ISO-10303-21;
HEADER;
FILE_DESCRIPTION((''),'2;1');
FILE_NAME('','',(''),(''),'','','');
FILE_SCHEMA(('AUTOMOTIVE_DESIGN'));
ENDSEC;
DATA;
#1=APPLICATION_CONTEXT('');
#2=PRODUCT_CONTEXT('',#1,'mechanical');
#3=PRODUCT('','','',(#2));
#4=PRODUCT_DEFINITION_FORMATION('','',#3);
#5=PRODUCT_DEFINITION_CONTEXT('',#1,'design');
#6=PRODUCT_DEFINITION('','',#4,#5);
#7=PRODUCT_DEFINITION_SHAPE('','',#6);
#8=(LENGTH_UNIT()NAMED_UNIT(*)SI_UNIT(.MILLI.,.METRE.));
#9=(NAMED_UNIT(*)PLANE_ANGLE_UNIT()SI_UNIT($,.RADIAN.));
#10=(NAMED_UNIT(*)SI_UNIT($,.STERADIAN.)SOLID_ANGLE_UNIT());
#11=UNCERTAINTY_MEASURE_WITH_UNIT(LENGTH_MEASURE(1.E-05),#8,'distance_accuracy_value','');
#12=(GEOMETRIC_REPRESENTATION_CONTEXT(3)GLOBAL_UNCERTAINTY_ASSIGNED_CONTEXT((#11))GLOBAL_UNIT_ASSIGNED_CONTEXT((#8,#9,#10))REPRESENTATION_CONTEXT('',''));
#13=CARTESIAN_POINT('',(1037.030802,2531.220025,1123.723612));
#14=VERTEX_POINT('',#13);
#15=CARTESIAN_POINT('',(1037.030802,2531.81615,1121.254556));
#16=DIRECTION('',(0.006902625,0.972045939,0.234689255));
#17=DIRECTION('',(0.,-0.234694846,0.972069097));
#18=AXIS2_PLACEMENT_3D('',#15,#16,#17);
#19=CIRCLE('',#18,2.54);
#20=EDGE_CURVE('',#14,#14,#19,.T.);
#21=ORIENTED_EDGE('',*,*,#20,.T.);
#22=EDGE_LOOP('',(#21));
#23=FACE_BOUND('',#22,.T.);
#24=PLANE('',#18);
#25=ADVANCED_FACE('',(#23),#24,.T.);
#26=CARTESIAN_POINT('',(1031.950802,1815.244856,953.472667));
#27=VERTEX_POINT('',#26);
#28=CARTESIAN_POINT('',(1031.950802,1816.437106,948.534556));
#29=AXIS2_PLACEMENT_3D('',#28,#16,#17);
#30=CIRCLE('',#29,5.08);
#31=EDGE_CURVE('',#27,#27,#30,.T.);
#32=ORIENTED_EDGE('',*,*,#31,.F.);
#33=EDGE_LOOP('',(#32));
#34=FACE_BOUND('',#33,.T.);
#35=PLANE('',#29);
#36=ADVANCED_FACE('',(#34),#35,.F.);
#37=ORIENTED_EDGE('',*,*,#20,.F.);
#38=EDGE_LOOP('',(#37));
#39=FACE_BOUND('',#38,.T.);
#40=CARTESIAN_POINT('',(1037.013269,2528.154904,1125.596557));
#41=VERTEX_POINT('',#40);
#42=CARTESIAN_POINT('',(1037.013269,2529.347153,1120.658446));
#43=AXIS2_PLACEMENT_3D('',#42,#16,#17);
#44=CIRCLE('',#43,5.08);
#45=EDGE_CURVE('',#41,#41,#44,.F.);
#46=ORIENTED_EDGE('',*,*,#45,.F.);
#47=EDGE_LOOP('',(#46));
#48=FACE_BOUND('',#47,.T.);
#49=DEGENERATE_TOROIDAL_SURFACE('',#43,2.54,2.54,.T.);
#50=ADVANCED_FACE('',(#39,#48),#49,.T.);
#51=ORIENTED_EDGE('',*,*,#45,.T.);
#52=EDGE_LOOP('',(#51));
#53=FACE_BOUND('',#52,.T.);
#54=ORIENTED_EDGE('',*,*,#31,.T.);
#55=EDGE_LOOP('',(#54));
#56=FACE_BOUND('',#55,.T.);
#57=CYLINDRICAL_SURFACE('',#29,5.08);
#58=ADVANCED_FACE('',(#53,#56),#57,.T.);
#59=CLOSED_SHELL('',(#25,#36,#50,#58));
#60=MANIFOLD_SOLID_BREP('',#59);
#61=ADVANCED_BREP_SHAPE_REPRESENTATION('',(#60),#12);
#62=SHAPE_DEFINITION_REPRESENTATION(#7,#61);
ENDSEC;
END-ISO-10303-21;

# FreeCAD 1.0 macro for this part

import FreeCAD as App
import Part
import Sketcher
from FreeCAD import Vector
Q = App.Units.Quantity


def edges_at(feature, points):
    """Names of the edges that pass closest to the given points."""
    edges = feature.Shape.Edges
    near = lambda p: min(range(len(edges)), key=lambda i: edges[i].distToShape(Part.Vertex(*p))[0])
    return sorted({f"Edge{near(p) + 1}" for p in points})

doc = App.newDocument("Part")
body = doc.addObject("PartDesign::Body", "Body")

sketch1 = body.newObject("Sketcher::SketchObject", "Sketch")
sketch1.Placement = App.Placement(Vector(1031.950802, 1816.437106, 948.534556), App.Rotation(Vector(0, -0.234694846, 0.972069097), Vector(0.999976177, -0.006709828, -0.001620011), Vector(0.006902625, 0.972045939, 0.234689255), "ZXY"))
sketch1.addGeometry(Part.Circle(Vector(0, 0, 0), Vector(0, 0, 1), 5), False)
sketch1.addConstraint([
    Sketcher.Constraint("Coincident", 0, 3, -1, 1),
    Sketcher.Constraint("Diameter", 0, Q("0.4 in")),
])

sketch2 = body.newObject("Sketcher::SketchObject", "Sketch001")
sketch2.Placement = App.Placement(Vector(0, -116.34591, 481.886441), App.Rotation(Vector(0, 0.972069097, 0.234694846), Vector(1, 0, 0), Vector(0, 0.234694846, -0.972069097), "ZXY"))
sketch2.addGeometry(Part.LineSegment(Vector(1988, 1032, 0), Vector(2724, 1037, 0)), False)
sketch2.addConstraint([
    Sketcher.Constraint("DistanceY", 0, 1, 0, 2, Q("0.2 in")),
    Sketcher.Constraint("DistanceY", -1, 1, 0, 1, Q("1031.950802 mm")),
    Sketcher.Constraint("Distance", 0, Q("735.951888 mm")),
    Sketcher.Constraint("DistanceX", -1, 1, 0, 1, Q("1988.318549 mm")),
])
doc.recompute()

additivepipe = body.newObject("PartDesign::AdditivePipe", "AdditivePipe")
additivepipe.Profile = sketch1
additivepipe.Spine = (sketch2, ["Edge1"])
doc.recompute()

fillet = body.newObject("PartDesign::Fillet", "Fillet")
fillet.Base = (additivepipe, edges_at(additivepipe, [(1037.031, 2533.008, 1116.316)]))
fillet.Radius = Q("0.1 in")

doc.recompute()
